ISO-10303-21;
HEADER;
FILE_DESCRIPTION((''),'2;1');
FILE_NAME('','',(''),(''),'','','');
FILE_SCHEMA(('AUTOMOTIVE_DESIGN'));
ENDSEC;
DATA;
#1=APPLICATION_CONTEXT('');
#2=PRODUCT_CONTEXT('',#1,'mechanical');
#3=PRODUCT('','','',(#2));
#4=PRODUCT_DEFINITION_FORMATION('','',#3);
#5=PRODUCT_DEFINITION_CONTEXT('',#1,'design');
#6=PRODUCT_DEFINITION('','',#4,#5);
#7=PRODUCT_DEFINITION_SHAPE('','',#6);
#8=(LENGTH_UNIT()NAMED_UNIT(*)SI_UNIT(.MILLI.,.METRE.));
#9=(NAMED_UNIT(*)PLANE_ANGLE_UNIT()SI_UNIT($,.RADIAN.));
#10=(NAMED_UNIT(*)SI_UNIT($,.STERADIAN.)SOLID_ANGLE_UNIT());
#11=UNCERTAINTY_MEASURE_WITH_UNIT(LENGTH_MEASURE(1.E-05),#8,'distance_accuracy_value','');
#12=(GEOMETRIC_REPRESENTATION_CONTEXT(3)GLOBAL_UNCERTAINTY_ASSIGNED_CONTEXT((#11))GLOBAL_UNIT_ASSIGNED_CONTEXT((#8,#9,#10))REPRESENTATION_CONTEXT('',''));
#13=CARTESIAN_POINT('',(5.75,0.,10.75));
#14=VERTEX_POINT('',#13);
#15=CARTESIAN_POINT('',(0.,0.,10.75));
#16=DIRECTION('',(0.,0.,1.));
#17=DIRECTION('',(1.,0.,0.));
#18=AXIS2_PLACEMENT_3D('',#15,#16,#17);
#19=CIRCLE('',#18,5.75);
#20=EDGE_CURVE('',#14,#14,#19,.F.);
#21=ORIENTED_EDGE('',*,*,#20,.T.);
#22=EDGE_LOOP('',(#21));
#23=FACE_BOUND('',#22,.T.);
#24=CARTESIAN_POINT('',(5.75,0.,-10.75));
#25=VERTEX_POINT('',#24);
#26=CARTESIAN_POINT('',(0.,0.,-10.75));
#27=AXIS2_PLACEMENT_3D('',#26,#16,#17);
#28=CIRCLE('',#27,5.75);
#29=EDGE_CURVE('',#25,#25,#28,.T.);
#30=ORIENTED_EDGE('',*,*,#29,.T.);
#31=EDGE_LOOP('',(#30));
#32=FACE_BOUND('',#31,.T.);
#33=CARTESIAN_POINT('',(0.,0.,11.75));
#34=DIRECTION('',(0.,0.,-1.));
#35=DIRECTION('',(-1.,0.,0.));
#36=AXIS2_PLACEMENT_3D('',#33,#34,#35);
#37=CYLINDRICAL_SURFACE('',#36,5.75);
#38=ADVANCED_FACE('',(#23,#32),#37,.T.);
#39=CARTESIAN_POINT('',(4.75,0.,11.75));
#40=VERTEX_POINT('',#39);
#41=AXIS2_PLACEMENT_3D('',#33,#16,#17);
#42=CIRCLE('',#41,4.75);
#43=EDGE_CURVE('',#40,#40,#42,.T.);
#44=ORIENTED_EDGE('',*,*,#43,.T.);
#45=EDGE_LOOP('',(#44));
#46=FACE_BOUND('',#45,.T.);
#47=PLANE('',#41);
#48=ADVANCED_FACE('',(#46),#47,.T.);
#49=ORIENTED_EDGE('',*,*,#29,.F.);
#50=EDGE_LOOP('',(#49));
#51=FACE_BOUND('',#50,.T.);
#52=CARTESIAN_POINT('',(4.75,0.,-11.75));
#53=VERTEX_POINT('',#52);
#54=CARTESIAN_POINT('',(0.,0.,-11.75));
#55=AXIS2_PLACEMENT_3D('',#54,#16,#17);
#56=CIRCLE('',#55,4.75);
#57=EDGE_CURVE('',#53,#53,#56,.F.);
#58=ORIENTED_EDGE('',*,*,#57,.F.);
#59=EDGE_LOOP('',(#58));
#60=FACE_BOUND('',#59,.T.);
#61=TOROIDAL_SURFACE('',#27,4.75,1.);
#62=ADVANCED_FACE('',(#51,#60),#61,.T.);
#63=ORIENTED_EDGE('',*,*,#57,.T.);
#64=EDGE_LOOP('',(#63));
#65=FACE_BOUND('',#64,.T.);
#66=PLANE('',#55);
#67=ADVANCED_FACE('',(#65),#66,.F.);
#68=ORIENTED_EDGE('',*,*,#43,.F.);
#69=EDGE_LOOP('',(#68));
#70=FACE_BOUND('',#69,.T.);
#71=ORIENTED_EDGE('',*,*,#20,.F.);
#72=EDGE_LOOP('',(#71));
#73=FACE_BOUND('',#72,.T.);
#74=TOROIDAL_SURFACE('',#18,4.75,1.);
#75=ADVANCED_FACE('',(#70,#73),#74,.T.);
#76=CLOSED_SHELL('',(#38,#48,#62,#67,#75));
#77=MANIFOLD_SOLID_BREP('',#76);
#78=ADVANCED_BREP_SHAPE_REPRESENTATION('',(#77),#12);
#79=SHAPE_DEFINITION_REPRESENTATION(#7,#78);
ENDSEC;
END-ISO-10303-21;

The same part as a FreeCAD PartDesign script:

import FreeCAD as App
import Part
import Sketcher
from FreeCAD import Vector
Q = App.Units.Quantity


def edges_at(feature, points):
    """Names of the edges that pass closest to the given points."""
    edges = feature.Shape.Edges
    near = lambda p: min(range(len(edges)), key=lambda i: edges[i].distToShape(Part.Vertex(*p))[0])
    return sorted({f"Edge{near(p) + 1}" for p in points})

doc = App.newDocument("Part")
body = doc.addObject("PartDesign::Body", "Body")

sketch1 = body.newObject("Sketcher::SketchObject", "Sketch")
sketch1.AttachmentSupport = (doc.getObject("XY_Plane"), [""])
sketch1.MapMode = "FlatFace"
sketch1.addGeometry(Part.Circle(Vector(0, 0, 0), Vector(0, 0, 1), 6), False)
sketch1.addConstraint([
    Sketcher.Constraint("Coincident", 0, 3, -1, 1),
    Sketcher.Constraint("Diameter", 0, Q("11.5 mm")),
])
pad1 = body.newObject("PartDesign::Pad", "Pad")
pad1.Profile = sketch1
pad1.Length = 23.5
pad1.Midplane = True
doc.recompute()

fillet = body.newObject("PartDesign::Fillet", "Fillet")
fillet.Base = (pad1, edges_at(pad1, [(-5.75, 0, -11.75), (-5.75, 0, 11.75)]))
fillet.Radius = 1

doc.recompute()
